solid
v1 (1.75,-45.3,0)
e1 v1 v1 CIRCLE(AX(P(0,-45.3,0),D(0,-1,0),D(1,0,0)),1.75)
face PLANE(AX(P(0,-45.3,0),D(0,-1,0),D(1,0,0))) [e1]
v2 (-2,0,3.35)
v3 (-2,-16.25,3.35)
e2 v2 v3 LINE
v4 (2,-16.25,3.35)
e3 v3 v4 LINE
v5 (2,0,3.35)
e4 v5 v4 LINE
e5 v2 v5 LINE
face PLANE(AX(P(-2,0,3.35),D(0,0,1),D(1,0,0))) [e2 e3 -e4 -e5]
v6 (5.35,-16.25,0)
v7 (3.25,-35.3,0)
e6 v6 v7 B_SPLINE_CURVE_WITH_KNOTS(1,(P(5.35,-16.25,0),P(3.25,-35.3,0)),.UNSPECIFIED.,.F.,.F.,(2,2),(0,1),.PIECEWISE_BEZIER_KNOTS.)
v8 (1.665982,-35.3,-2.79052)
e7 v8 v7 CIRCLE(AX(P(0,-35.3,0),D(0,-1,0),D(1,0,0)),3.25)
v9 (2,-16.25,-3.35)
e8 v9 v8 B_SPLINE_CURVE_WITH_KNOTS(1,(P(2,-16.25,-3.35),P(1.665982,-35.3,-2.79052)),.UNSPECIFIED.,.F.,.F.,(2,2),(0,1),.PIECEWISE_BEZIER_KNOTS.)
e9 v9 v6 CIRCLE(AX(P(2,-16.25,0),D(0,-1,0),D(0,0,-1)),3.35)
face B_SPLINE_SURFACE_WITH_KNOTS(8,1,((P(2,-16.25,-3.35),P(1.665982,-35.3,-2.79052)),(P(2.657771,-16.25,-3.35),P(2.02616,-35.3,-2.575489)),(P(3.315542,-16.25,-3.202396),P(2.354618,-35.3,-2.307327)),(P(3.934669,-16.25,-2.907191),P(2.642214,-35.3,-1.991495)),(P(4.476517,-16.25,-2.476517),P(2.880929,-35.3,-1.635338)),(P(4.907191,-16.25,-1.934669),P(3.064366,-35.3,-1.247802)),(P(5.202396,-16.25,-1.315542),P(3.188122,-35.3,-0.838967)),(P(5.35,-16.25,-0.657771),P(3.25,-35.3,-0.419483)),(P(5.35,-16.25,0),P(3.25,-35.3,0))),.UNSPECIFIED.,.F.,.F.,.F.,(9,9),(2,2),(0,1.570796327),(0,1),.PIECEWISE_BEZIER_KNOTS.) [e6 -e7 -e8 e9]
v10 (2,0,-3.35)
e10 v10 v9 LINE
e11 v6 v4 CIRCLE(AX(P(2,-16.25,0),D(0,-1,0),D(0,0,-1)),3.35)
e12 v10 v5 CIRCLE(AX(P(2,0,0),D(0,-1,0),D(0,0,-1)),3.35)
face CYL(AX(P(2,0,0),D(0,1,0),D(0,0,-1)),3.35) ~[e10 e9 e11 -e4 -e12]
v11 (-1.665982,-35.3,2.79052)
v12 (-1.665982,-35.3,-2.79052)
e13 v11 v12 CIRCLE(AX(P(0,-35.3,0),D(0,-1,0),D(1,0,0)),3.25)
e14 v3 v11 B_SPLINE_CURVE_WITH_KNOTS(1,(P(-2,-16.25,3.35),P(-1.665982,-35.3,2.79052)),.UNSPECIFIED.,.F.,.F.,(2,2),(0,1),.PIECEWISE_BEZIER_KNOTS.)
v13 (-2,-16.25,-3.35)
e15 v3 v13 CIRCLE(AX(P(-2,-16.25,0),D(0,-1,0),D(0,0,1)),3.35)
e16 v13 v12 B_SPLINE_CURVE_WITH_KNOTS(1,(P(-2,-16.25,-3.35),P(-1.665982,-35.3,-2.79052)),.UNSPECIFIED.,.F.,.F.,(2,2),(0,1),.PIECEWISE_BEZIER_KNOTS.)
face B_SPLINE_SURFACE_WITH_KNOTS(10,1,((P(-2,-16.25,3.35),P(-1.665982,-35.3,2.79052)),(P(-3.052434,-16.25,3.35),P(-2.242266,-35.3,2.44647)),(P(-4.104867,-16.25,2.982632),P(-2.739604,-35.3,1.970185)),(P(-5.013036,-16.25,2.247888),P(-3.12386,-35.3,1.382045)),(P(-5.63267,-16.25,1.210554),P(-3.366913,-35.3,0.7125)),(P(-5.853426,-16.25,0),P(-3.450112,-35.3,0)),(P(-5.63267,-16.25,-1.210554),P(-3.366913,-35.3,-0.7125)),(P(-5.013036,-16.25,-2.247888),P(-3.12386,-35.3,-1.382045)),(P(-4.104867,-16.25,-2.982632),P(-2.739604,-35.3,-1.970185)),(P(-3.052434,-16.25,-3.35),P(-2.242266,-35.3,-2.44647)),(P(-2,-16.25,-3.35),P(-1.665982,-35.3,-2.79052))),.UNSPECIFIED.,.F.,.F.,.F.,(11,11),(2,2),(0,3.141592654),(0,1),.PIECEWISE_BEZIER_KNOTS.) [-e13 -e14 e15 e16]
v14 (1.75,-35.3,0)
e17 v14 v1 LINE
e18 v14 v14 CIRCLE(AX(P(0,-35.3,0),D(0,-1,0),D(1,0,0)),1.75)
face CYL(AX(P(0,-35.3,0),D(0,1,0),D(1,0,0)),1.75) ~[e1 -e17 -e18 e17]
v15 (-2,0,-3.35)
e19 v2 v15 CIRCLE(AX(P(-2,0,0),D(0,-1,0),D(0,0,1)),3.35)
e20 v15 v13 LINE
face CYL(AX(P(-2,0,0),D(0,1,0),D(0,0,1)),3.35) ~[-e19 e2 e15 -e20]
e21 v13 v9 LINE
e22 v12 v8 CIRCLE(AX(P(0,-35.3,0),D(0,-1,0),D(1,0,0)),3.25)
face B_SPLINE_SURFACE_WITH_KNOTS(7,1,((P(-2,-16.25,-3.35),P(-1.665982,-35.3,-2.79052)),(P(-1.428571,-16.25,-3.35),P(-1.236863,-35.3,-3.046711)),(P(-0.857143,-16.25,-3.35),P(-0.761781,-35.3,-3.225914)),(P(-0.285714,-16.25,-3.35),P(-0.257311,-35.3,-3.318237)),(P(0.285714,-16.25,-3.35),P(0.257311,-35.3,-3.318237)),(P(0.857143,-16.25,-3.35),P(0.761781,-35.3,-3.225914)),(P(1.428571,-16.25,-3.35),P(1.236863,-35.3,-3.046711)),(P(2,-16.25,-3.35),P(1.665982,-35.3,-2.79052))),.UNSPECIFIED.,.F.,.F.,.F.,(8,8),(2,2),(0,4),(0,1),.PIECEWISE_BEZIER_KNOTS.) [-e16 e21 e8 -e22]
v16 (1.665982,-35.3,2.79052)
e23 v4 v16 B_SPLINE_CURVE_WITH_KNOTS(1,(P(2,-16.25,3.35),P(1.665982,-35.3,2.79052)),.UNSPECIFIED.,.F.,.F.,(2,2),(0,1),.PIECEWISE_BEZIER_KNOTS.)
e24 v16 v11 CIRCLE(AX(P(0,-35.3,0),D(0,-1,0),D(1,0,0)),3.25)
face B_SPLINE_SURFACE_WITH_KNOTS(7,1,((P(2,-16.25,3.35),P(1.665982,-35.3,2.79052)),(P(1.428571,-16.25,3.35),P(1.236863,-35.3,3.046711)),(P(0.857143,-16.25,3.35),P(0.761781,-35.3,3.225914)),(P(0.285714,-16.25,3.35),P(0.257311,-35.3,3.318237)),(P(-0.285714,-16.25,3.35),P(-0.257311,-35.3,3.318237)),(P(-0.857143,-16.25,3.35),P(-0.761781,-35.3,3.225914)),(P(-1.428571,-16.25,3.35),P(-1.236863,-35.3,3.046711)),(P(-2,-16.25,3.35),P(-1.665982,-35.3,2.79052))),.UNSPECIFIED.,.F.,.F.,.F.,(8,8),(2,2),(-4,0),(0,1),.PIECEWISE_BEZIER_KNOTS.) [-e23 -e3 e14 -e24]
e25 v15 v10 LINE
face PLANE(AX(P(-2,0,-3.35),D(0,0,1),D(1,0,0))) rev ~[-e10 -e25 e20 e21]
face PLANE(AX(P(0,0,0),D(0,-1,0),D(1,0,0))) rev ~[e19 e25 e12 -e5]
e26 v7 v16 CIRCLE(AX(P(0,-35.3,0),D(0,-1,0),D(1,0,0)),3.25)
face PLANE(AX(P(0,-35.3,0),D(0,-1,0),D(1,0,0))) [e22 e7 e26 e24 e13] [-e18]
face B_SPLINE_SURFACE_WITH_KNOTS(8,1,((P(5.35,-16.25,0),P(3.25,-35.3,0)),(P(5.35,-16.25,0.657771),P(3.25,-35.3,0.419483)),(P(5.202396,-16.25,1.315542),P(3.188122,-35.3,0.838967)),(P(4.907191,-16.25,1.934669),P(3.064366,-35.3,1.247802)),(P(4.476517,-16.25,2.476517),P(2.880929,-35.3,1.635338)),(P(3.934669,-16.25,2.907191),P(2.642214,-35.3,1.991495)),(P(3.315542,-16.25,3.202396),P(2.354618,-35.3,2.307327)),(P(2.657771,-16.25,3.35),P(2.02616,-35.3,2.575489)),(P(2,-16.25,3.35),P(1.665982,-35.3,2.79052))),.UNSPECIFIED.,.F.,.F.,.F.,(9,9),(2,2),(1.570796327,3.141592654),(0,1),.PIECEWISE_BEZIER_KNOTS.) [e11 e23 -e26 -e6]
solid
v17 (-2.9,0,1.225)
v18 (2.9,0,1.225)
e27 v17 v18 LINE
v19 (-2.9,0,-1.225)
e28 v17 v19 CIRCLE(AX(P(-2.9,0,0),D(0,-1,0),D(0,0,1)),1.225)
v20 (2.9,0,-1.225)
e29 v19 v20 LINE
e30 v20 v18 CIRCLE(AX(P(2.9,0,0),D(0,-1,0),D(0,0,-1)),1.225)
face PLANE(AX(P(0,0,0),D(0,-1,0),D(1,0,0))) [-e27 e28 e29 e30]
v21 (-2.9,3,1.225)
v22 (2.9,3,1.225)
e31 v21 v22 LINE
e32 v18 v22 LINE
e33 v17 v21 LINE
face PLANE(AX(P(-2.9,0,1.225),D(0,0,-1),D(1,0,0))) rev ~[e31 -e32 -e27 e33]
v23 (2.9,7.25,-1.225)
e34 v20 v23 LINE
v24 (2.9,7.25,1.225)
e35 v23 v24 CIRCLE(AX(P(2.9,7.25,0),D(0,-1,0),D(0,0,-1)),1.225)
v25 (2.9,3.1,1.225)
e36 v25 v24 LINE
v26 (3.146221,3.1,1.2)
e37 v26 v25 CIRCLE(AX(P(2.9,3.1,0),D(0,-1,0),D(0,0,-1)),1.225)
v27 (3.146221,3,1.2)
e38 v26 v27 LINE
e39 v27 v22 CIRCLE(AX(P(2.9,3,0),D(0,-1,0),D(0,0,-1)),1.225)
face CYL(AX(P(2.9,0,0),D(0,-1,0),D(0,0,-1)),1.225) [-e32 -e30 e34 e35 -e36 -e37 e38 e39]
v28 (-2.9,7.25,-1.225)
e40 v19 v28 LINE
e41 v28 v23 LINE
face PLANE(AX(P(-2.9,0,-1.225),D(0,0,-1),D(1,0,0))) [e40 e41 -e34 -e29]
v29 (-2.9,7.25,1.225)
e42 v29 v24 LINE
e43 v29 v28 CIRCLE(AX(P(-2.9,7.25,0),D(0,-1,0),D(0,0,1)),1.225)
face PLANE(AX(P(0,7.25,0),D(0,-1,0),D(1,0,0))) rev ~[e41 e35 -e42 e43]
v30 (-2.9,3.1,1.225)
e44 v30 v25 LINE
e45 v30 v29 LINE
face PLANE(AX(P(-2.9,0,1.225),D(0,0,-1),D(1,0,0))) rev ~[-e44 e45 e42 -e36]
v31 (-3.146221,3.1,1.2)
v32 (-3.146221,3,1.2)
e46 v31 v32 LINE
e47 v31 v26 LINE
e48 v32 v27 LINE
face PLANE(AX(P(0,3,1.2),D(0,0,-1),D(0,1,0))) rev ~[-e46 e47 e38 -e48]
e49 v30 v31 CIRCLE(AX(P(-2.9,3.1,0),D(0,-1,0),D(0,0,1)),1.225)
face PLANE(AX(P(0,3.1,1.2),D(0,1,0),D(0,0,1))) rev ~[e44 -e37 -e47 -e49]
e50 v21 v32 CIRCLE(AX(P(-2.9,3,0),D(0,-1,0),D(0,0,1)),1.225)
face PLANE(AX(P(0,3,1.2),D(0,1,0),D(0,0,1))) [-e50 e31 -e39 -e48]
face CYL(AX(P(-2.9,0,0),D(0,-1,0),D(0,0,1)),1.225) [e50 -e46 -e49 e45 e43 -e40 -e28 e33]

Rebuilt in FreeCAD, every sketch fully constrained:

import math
import FreeCAD as App
import Part
import Sketcher
Q = App.Units.Quantity


def add_polygon(sketch, points):
    """Adds a closed chain of lines whose ends are joined by coincident constraints."""
    first, n = sketch.GeometryCount, len(points)
    for a, b in zip(points, points[1:] + points[:1]):
        sketch.addGeometry(Part.LineSegment(App.Vector(*a, 0), App.Vector(*b, 0)), False)
    for i in range(n):
        sketch.addConstraint(Sketcher.Constraint("Coincident", first + i, 2, first + (i + 1) % n, 1))

doc = App.newDocument("Part")
body = doc.addObject("PartDesign::Body", "Body")

sketch1 = body.newObject("Sketcher::SketchObject", "Sketch")
sketch1.AttachmentSupport = (doc.getObject("XZ_Plane"), [""])
sketch1.MapMode = "FlatFace"
sketch1.addGeometry([
    Part.ArcOfCircle(Part.Circle(App.Vector(-2, 0, 0), App.Vector(0, 0, 1), 3.4), math.radians(90), math.radians(270)),
    Part.LineSegment(App.Vector(-2, -3.4, 0), App.Vector(2, -3.4, 0)),
    Part.ArcOfCircle(Part.Circle(App.Vector(2, 0, 0), App.Vector(0, 0, 1), 3.4), math.radians(-90), math.radians(90)),
    Part.LineSegment(App.Vector(2, 3.4, 0), App.Vector(-2, 3.4, 0)),
], False)
sketch1.addConstraint([
    Sketcher.Constraint("Tangent", 0, 2, 1, 1),
    Sketcher.Constraint("Tangent", 1, 2, 2, 1),
    Sketcher.Constraint("Tangent", 2, 2, 3, 1),
    Sketcher.Constraint("Tangent", 3, 2, 0, 1),
    Sketcher.Constraint("Horizontal", 1),
    Sketcher.Constraint("Horizontal", 3),
    Sketcher.Constraint("Symmetric", 0, 3, 2, 3, -1, 1),
    Sketcher.Constraint("DistanceX", 1, 1, 1, 2, Q("4 mm")),
    Sketcher.Constraint("Radius", 0, Q("3.35 mm")),
])
pad1 = body.newObject("PartDesign::Pad", "Pad")
pad1.Profile = sketch1
pad1.Length = 16.25

sketch2 = body.newObject("Sketcher::SketchObject", "Sketch001")
sketch2.AttachmentSupport = (doc.getObject("XZ_Plane"), [""])
sketch2.MapMode = "FlatFace"
sketch2.AttachmentOffset = App.Placement(App.Vector(0, 0, 16.25), App.Rotation())
sketch2.addGeometry([
    Part.ArcOfCircle(Part.Circle(App.Vector(-2, 0, 0), App.Vector(0, 0, 1), 3.4), math.radians(90), math.radians(270)),
    Part.LineSegment(App.Vector(-2, -3.4, 0), App.Vector(2, -3.4, 0)),
    Part.ArcOfCircle(Part.Circle(App.Vector(2, 0, 0), App.Vector(0, 0, 1), 3.4), math.radians(-90), math.radians(90)),
    Part.LineSegment(App.Vector(2, 3.4, 0), App.Vector(-2, 3.4, 0)),
], False)
sketch2.addConstraint([
    Sketcher.Constraint("Tangent", 0, 2, 1, 1),
    Sketcher.Constraint("Tangent", 1, 2, 2, 1),
    Sketcher.Constraint("Tangent", 2, 2, 3, 1),
    Sketcher.Constraint("Tangent", 3, 2, 0, 1),
    Sketcher.Constraint("Horizontal", 1),
    Sketcher.Constraint("Horizontal", 3),
    Sketcher.Constraint("Symmetric", 0, 3, 2, 3, -1, 1),
    Sketcher.Constraint("DistanceX", 1, 1, 1, 2, Q("4 mm")),
    Sketcher.Constraint("Radius", 0, Q("3.35 mm")),
])

sketch3 = body.newObject("Sketcher::SketchObject", "Sketch002")
sketch3.AttachmentSupport = (doc.getObject("XZ_Plane"), [""])
sketch3.MapMode = "FlatFace"
sketch3.AttachmentOffset = App.Placement(App.Vector(0, 0, 35.3), App.Rotation())
sketch3.addGeometry(Part.Circle(App.Vector(0, 0, 0), App.Vector(0, 0, 1), 3.2), False)
sketch3.addConstraint([
    Sketcher.Constraint("Coincident", 0, 3, -1, 1),
    Sketcher.Constraint("Diameter", 0, Q("6.5 mm")),
])

additiveloft = body.newObject("PartDesign::AdditiveLoft", "AdditiveLoft")
additiveloft.Profile = sketch2
additiveloft.Sections = [sketch3]

sketch4 = body.newObject("Sketcher::SketchObject", "Sketch003")
sketch4.AttachmentSupport = (doc.getObject("XZ_Plane"), [""])
sketch4.MapMode = "FlatFace"
sketch4.AttachmentOffset = App.Placement(App.Vector(0, 0, 35.3), App.Rotation())
sketch4.addGeometry(Part.Circle(App.Vector(0, 0, 0), App.Vector(0, 0, 1), 1.8), False)
sketch4.addConstraint([
    Sketcher.Constraint("Coincident", 0, 3, -1, 1),
    Sketcher.Constraint("Diameter", 0, Q("3.5 mm")),
])
pad2 = body.newObject("PartDesign::Pad", "Pad001")
pad2.Profile = sketch4
pad2.Length = 10
body2 = doc.addObject("PartDesign::Body", "Body001")

sketch5 = body2.newObject("Sketcher::SketchObject", "Sketch004")
sketch5.AttachmentSupport = (doc.getObject("XZ_Plane001"), [""])
sketch5.MapMode = "FlatFace"
sketch5.addGeometry([
    Part.ArcOfCircle(Part.Circle(App.Vector(-2.9, 0, 0), App.Vector(0, 0, 1), 1.2), math.radians(90), math.radians(270)),
    Part.LineSegment(App.Vector(-2.9, -1.2, 0), App.Vector(2.9, -1.2, 0)),
    Part.ArcOfCircle(Part.Circle(App.Vector(2.9, 0, 0), App.Vector(0, 0, 1), 1.2), math.radians(-90), math.radians(90)),
    Part.LineSegment(App.Vector(2.9, 1.2, 0), App.Vector(-2.9, 1.2, 0)),
], False)
sketch5.addConstraint([
    Sketcher.Constraint("Tangent", 0, 2, 1, 1),
    Sketcher.Constraint("Tangent", 1, 2, 2, 1),
    Sketcher.Constraint("Tangent", 2, 2, 3, 1),
    Sketcher.Constraint("Tangent", 3, 2, 0, 1),
    Sketcher.Constraint("Horizontal", 1),
    Sketcher.Constraint("Horizontal", 3),
    Sketcher.Constraint("Symmetric", 0, 3, 2, 3, -1, 1),
    Sketcher.Constraint("DistanceX", 1, 1, 1, 2, Q("5.8 mm")),
    Sketcher.Constraint("Radius", 0, Q("1.225 mm")),
])
pad3 = body2.newObject("PartDesign::Pad", "Pad002")
pad3.Profile = sketch5
pad3.Length = 7.25
pad3.Reversed = True

sketch6 = body2.newObject("Sketcher::SketchObject", "Sketch005")
sketch6.AttachmentSupport = (doc.getObject("YZ_Plane001"), [""])
sketch6.MapMode = "FlatFace"
add_polygon(sketch6, [(3, 11.2), (3, 1.2), (3.1, 1.2), (3.1, 11.2)])
sketch6.addConstraint([
    Sketcher.Constraint("Vertical", 0),
    Sketcher.Constraint("Horizontal", 1),
    Sketcher.Constraint("Vertical", 2),
    Sketcher.Constraint("Horizontal", 3),
    Sketcher.Constraint("DistanceY", 0, 2, 0, 1, Q("10 mm")),
    Sketcher.Constraint("DistanceX", 1, 1, 1, 2, Q("0.1 mm")),
    Sketcher.Constraint("DistanceX", -1, 1, 0, 2, Q("3 mm")),
    Sketcher.Constraint("DistanceY", -1, 1, 0, 2, Q("1.2 mm")),
])
pocket1 = body2.newObject("PartDesign::Pocket", "Pocket")
pocket1.Profile = sketch6
pocket1.Type = "ThroughAll"
pocket1.Midplane = True

doc.recompute()
